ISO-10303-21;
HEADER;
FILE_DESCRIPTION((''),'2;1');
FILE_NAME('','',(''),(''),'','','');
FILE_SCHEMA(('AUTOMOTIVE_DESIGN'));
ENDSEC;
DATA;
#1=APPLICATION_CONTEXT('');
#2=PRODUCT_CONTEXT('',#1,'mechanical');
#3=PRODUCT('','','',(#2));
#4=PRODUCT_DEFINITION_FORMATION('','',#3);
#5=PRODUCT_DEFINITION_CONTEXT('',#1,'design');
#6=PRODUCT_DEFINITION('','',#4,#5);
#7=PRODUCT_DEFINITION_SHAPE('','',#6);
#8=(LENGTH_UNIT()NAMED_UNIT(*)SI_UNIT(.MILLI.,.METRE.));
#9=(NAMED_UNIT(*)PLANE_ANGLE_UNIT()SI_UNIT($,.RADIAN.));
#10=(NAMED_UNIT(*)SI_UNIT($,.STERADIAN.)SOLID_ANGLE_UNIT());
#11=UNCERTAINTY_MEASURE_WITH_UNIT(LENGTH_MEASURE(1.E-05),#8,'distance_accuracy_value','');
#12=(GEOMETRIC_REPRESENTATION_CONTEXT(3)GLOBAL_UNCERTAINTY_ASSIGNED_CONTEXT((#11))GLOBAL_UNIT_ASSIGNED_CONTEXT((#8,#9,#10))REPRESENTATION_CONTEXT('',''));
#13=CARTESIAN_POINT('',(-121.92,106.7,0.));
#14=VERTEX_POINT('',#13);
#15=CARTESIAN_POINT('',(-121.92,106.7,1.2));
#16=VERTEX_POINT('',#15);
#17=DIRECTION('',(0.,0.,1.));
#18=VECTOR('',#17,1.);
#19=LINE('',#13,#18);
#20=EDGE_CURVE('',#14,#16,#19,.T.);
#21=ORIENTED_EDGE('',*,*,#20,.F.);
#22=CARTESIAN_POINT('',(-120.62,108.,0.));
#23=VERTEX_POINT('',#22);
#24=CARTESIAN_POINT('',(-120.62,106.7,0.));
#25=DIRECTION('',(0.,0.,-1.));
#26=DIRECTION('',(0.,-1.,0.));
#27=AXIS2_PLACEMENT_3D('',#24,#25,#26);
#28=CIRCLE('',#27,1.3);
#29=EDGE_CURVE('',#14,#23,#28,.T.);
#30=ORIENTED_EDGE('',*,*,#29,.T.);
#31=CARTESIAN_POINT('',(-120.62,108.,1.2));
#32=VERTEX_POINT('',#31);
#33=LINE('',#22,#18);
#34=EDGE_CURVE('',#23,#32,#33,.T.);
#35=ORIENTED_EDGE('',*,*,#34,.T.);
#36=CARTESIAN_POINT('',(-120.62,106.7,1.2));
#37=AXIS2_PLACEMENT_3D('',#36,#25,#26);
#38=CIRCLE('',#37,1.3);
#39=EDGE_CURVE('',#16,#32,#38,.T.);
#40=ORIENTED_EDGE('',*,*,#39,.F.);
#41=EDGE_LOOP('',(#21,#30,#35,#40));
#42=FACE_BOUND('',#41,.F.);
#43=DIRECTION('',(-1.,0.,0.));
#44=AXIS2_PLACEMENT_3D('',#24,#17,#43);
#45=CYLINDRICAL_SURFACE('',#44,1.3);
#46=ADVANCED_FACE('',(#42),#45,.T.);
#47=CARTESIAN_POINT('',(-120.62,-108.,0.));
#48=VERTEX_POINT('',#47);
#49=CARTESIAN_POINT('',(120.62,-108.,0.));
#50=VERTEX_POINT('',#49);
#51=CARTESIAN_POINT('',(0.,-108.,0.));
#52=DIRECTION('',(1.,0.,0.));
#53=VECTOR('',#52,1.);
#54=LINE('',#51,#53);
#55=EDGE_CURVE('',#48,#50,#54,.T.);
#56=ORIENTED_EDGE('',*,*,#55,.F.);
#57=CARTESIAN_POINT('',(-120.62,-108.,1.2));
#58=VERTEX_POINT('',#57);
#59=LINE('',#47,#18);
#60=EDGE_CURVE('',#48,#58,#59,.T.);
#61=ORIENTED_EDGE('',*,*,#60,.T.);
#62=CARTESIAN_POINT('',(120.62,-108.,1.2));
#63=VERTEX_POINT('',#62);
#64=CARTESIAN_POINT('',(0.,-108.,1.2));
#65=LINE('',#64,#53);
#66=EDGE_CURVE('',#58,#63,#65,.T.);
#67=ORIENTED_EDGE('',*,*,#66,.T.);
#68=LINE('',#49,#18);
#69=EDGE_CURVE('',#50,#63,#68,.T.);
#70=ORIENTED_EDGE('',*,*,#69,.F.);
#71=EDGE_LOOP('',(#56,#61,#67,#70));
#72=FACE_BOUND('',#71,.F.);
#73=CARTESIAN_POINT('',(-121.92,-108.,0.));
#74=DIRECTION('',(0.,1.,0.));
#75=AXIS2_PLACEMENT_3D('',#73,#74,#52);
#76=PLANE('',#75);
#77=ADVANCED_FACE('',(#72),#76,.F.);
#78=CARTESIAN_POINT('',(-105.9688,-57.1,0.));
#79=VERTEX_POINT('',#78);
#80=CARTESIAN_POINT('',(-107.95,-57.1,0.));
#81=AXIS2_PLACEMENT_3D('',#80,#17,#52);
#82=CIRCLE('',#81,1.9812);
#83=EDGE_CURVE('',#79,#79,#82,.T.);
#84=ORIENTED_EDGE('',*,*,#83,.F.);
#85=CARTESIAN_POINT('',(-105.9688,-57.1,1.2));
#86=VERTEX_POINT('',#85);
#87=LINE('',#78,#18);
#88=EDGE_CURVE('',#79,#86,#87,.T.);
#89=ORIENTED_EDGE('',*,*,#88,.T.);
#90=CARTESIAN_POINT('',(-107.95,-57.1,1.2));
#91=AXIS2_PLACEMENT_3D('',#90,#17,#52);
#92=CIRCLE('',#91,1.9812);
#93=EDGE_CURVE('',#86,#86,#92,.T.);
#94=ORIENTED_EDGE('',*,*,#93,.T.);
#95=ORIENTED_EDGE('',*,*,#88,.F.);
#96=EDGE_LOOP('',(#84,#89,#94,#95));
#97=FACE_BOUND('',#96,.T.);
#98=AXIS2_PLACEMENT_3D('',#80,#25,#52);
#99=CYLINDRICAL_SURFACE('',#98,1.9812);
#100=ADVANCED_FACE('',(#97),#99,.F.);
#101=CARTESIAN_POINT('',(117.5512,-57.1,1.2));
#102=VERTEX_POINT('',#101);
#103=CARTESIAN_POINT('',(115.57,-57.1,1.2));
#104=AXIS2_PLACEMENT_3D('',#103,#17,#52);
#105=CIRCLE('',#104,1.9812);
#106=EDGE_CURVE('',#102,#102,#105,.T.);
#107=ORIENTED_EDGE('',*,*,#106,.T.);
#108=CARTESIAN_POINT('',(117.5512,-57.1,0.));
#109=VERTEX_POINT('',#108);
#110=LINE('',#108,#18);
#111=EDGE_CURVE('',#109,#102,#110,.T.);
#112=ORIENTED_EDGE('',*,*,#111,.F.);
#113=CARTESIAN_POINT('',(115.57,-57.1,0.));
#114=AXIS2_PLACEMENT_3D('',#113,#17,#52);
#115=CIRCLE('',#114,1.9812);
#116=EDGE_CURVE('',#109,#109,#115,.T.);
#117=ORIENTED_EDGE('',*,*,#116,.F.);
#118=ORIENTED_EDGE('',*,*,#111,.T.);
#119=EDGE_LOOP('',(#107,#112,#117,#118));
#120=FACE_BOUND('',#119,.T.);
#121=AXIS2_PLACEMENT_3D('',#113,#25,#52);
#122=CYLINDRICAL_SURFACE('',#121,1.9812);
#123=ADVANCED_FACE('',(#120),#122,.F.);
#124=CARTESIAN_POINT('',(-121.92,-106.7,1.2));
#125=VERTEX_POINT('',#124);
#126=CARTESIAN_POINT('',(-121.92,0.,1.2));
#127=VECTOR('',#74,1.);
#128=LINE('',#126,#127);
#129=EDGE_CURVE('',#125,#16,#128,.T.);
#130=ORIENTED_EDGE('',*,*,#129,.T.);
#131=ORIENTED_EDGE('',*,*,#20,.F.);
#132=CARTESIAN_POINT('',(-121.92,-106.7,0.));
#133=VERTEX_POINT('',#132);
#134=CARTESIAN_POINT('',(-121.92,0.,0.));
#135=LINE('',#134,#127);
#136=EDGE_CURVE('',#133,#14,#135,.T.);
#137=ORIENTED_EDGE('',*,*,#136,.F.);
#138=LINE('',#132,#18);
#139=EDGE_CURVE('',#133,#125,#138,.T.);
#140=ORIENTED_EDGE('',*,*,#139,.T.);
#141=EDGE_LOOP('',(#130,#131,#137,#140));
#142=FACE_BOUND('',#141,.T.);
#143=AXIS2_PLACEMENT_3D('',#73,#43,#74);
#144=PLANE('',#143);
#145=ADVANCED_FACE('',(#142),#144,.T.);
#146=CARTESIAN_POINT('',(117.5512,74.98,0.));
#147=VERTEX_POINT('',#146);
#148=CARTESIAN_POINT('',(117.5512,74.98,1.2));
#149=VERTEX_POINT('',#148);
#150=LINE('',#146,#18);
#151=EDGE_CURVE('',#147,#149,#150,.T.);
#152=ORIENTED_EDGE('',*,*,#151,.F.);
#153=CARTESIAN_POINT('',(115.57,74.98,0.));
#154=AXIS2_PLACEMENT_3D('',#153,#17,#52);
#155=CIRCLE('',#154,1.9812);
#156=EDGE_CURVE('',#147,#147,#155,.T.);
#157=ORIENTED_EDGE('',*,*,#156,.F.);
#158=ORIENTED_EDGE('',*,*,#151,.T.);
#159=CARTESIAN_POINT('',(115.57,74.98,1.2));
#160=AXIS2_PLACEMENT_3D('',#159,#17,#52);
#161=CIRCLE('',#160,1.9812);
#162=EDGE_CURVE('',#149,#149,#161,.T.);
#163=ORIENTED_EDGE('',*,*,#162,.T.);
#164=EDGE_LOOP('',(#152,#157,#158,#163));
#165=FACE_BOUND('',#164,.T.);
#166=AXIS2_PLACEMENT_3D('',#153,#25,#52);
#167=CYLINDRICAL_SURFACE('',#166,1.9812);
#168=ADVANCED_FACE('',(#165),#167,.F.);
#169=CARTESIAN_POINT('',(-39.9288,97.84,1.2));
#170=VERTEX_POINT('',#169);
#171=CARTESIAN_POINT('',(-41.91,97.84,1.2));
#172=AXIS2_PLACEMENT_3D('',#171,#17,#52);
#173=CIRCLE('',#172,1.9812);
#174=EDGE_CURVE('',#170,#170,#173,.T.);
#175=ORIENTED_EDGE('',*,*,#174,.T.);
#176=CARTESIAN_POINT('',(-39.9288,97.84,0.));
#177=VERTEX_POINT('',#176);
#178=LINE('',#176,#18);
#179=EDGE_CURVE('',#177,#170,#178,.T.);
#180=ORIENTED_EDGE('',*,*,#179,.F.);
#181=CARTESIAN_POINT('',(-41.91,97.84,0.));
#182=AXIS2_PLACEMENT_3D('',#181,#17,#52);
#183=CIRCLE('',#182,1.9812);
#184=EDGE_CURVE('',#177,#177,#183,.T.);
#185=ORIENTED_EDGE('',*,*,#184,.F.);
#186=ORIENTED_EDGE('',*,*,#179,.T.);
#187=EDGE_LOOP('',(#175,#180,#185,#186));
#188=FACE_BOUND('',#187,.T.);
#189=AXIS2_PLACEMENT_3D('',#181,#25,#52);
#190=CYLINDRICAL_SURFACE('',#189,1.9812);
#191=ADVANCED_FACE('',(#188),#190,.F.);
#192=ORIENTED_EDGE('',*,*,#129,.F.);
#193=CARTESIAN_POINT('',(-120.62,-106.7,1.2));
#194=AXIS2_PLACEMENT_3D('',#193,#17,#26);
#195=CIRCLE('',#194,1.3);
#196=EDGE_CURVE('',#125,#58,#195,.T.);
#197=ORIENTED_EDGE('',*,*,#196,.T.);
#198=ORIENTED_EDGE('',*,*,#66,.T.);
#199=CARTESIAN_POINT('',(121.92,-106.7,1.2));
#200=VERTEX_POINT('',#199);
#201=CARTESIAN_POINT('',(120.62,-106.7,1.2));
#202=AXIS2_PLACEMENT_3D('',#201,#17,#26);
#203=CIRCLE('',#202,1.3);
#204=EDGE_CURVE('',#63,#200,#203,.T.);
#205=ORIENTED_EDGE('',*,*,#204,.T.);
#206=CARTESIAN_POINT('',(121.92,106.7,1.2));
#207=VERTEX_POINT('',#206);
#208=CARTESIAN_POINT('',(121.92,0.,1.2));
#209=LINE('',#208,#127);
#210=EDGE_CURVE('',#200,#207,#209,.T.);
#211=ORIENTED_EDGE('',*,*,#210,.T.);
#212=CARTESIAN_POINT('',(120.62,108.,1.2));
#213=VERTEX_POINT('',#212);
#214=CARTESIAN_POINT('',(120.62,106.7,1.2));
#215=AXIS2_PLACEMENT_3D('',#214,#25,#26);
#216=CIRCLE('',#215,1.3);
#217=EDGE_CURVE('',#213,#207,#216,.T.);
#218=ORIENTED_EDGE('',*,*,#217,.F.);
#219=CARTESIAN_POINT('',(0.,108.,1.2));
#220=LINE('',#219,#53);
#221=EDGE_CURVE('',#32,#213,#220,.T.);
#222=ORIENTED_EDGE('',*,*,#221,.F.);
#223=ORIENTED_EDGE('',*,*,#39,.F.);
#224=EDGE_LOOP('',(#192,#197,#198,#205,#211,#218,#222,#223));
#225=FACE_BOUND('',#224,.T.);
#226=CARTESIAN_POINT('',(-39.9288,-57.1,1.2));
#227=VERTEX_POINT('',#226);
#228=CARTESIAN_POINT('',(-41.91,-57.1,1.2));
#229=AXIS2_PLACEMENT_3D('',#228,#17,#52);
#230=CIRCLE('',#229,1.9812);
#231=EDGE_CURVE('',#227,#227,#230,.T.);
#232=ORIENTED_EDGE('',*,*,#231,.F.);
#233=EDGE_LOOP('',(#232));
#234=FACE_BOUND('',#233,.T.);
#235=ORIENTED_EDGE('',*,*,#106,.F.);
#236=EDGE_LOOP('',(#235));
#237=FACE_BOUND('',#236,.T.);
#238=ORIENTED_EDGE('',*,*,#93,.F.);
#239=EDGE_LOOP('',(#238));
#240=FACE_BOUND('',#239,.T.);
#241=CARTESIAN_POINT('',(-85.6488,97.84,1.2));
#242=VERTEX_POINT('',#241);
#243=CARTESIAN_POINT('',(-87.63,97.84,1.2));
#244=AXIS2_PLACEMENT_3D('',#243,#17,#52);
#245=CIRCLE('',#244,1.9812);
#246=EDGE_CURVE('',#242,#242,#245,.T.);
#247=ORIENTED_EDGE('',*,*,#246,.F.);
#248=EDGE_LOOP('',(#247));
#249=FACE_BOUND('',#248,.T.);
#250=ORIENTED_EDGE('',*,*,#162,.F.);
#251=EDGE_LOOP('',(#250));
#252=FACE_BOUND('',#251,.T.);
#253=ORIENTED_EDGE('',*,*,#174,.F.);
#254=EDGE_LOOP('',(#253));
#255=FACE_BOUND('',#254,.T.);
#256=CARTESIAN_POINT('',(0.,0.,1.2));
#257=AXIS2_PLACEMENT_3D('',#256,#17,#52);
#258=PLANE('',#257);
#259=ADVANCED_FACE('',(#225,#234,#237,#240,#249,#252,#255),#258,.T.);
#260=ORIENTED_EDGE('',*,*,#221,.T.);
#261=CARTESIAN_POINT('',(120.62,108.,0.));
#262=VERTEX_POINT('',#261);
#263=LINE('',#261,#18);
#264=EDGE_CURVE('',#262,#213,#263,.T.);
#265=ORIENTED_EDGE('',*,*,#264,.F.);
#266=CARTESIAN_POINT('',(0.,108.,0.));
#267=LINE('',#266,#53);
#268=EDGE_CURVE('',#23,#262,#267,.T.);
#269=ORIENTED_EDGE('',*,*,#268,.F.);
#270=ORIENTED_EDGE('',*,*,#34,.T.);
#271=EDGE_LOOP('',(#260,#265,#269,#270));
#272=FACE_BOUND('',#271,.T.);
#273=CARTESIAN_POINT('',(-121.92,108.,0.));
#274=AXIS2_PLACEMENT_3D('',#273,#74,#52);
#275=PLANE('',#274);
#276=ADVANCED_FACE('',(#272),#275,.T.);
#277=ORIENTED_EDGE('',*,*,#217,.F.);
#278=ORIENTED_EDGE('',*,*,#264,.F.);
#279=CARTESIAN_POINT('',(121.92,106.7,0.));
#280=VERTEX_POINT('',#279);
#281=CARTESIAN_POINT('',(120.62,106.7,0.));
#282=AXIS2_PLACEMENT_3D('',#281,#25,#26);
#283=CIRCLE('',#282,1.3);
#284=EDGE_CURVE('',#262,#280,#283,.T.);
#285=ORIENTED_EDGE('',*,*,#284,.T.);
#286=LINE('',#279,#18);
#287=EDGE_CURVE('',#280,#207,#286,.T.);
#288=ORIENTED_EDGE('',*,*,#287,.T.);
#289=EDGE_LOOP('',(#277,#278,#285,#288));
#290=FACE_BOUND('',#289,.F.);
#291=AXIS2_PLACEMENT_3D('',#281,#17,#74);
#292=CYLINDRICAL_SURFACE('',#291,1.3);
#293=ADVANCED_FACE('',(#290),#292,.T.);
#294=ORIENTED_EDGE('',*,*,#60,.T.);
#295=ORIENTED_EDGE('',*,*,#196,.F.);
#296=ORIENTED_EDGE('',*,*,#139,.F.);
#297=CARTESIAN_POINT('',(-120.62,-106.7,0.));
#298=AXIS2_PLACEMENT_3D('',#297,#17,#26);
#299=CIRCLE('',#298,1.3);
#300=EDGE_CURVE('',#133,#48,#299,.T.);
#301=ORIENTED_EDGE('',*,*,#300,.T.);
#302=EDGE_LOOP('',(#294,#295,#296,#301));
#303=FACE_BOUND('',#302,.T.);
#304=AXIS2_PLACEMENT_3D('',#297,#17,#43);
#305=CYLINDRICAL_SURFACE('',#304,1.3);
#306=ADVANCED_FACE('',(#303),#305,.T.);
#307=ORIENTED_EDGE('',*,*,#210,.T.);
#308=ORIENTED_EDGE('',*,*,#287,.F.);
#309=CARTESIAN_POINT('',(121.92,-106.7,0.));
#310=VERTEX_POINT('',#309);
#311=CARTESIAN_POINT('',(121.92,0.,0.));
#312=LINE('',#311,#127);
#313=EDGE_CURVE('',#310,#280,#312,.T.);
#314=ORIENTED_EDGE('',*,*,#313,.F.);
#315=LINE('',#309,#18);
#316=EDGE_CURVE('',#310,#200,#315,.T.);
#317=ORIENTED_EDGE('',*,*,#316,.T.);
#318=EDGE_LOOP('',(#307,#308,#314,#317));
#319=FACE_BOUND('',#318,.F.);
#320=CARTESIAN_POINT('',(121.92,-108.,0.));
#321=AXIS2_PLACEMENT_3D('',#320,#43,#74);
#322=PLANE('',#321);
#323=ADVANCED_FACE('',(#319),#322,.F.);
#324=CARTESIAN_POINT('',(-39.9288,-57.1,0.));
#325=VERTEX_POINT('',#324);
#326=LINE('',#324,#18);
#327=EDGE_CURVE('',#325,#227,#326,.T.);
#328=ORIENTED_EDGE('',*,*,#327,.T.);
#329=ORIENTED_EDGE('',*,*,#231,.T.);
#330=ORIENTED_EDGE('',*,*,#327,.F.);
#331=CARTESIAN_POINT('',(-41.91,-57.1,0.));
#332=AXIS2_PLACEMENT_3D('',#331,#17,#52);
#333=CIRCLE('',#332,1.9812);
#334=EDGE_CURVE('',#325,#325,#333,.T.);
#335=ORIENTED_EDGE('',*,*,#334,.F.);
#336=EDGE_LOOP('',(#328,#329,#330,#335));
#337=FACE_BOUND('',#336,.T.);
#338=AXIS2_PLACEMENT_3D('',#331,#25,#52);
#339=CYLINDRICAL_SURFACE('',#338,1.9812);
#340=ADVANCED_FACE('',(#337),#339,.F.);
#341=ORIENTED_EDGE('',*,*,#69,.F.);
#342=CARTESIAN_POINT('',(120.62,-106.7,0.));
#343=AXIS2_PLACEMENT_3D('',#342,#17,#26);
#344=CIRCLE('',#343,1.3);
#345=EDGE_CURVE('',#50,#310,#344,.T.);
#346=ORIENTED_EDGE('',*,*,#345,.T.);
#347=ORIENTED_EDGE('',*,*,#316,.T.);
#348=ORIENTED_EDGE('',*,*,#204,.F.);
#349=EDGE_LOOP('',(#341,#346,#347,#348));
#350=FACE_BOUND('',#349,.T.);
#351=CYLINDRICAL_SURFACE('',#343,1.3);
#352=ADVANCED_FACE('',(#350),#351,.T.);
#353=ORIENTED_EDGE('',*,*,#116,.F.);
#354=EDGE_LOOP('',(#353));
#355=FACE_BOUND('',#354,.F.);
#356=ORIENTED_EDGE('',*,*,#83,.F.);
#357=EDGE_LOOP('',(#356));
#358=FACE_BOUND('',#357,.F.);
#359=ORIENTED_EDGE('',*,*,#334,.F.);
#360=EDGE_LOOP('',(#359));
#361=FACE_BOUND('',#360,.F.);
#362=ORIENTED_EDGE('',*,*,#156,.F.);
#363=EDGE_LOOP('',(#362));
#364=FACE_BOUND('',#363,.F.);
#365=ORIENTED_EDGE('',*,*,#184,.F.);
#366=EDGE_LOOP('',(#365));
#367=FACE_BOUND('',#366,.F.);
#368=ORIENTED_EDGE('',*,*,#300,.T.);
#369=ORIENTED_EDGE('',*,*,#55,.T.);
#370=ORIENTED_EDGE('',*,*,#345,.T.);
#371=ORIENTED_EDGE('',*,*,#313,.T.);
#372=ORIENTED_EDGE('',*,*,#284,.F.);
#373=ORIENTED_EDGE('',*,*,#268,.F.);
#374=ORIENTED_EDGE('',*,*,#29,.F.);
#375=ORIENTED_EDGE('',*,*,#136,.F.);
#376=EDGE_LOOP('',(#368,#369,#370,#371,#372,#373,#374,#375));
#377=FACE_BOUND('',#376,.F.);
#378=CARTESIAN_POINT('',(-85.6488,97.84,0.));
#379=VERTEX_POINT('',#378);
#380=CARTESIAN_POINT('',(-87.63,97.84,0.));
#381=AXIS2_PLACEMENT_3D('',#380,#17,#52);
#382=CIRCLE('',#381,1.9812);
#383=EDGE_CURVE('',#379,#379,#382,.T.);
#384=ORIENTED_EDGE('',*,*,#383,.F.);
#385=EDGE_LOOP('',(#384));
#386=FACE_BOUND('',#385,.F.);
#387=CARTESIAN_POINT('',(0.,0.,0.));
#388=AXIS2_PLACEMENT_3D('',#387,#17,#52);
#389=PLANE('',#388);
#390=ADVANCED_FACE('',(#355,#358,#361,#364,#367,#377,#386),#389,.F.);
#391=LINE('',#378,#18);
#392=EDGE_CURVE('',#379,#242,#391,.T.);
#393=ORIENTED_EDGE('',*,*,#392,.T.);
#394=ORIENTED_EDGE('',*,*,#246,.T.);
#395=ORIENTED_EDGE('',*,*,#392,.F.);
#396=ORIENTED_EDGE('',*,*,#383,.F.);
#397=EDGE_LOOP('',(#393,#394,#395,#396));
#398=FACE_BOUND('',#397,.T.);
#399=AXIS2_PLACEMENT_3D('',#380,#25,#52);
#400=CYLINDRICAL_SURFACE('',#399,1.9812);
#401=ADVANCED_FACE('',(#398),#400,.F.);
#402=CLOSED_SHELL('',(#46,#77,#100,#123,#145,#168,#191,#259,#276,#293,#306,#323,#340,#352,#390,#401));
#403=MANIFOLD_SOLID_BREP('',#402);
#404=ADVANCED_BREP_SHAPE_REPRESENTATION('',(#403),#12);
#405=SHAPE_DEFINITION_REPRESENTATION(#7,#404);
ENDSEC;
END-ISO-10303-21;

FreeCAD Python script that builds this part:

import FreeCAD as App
import Part
import Sketcher
from FreeCAD import Vector


def edges_at(feature, points):
    """Names of the edges that pass closest to the given points."""
    edges = feature.Shape.Edges
    near = lambda p: min(range(len(edges)), key=lambda i: edges[i].distToShape(Part.Vertex(*p))[0])
    return sorted({f"Edge{near(p) + 1}" for p in points})

doc = App.newDocument("Part")
body = doc.addObject("PartDesign::Body", "Body")

# Sketch on XY plane
sketch1 = body.newObject("Sketcher::SketchObject", "Sketch")
sketch1.AttachmentSupport = (doc.getObject("XY_Plane"), [""])
sketch1.MapMode = "FlatFace"
sketch1.addGeometry([
    Part.LineSegment(Vector(-121.9, 108, 0), Vector(-121.9, -108, 0)),  # 0
    Part.LineSegment(Vector(-121.9, -108, 0), Vector(121.9, -108, 0)),  # 1
    Part.LineSegment(Vector(121.9, -108, 0), Vector(121.9, 108, 0)),  # 2
    Part.LineSegment(Vector(121.9, 108, 0), Vector(-121.9, 108, 0)),  # 3
    Part.Circle(Vector(-108, -57.1, 0), Vector(0, 0, 1), 2),  # 4
    Part.Circle(Vector(-41.9, -57.1, 0), Vector(0, 0, 1), 2),  # 5
    Part.Circle(Vector(115.6, -57.1, 0), Vector(0, 0, 1), 2),  # 6
    Part.Circle(Vector(-87.6, 97.8, 0), Vector(0, 0, 1), 2),  # 7
    Part.Circle(Vector(-41.9, 97.8, 0), Vector(0, 0, 1), 2),  # 8
    Part.Circle(Vector(115.6, 75, 0), Vector(0, 0, 1), 2),  # 9
], False)
sketch1.addConstraint([
    Sketcher.Constraint("Coincident", 0, 2, 1, 1),
    Sketcher.Constraint("Coincident", 1, 2, 2, 1),
    Sketcher.Constraint("Coincident", 2, 2, 3, 1),
    Sketcher.Constraint("Coincident", 3, 2, 0, 1),
    Sketcher.Constraint("Vertical", 0),
    Sketcher.Constraint("Horizontal", 1),
    Sketcher.Constraint("Vertical", 2),
    Sketcher.Constraint("Horizontal", 3),
    Sketcher.Constraint("Equal", 4, 5),
    Sketcher.Constraint("Equal", 5, 6),
    Sketcher.Constraint("Equal", 6, 7),
    Sketcher.Constraint("Equal", 7, 8),
    Sketcher.Constraint("Equal", 8, 9),
    Sketcher.Constraint("Symmetric", 0, 2, 2, 2, -1, 1),
    Sketcher.Constraint("Horizontal", 4, 3, 5, 3),
    Sketcher.Constraint("Horizontal", 5, 3, 6, 3),
    Sketcher.Constraint("Horizontal", 7, 3, 8, 3),
    Sketcher.Constraint("Vertical", 5, 3, 8, 3),
    Sketcher.Constraint("Vertical", 6, 3, 9, 3),
    Sketcher.Constraint("DistanceY", 0, 2, 0, 1, 216.0),
    Sketcher.Constraint("Diameter", 4, 3.9624),
    Sketcher.Constraint("DistanceX", 1, 1, 1, 2, 243.84),
    Sketcher.Constraint("DistanceY", 4, 3, -1, 1, 57.1),
    Sketcher.Constraint("DistanceX", 7, 3, 6, 3, 203.2),
    Sketcher.Constraint("DistanceX", 4, 3, -1, 1, 107.95),
    Sketcher.Constraint("DistanceX", 5, 3, -1, 1, 41.91),
    Sketcher.Constraint("DistanceX", -1, 1, 6, 3, 115.57),
    Sketcher.Constraint("DistanceY", -1, 1, 7, 3, 97.84),
    Sketcher.Constraint("DistanceY", -1, 1, 9, 3, 74.98),
])
pad1 = body.newObject("PartDesign::Pad", "Pad")
pad1.Profile = sketch1
pad1.Length = 1.2
doc.recompute()

fillet = body.newObject("PartDesign::Fillet", "Fillet")
fillet.Base = (pad1, edges_at(pad1, [
    (-121.92, -108, 0.6),
    (121.92, -108, 0.6),
    (-121.92, 108, 0.6),
    (121.92, 108, 0.6),
]))
fillet.Radius = 1.3

doc.recompute()
